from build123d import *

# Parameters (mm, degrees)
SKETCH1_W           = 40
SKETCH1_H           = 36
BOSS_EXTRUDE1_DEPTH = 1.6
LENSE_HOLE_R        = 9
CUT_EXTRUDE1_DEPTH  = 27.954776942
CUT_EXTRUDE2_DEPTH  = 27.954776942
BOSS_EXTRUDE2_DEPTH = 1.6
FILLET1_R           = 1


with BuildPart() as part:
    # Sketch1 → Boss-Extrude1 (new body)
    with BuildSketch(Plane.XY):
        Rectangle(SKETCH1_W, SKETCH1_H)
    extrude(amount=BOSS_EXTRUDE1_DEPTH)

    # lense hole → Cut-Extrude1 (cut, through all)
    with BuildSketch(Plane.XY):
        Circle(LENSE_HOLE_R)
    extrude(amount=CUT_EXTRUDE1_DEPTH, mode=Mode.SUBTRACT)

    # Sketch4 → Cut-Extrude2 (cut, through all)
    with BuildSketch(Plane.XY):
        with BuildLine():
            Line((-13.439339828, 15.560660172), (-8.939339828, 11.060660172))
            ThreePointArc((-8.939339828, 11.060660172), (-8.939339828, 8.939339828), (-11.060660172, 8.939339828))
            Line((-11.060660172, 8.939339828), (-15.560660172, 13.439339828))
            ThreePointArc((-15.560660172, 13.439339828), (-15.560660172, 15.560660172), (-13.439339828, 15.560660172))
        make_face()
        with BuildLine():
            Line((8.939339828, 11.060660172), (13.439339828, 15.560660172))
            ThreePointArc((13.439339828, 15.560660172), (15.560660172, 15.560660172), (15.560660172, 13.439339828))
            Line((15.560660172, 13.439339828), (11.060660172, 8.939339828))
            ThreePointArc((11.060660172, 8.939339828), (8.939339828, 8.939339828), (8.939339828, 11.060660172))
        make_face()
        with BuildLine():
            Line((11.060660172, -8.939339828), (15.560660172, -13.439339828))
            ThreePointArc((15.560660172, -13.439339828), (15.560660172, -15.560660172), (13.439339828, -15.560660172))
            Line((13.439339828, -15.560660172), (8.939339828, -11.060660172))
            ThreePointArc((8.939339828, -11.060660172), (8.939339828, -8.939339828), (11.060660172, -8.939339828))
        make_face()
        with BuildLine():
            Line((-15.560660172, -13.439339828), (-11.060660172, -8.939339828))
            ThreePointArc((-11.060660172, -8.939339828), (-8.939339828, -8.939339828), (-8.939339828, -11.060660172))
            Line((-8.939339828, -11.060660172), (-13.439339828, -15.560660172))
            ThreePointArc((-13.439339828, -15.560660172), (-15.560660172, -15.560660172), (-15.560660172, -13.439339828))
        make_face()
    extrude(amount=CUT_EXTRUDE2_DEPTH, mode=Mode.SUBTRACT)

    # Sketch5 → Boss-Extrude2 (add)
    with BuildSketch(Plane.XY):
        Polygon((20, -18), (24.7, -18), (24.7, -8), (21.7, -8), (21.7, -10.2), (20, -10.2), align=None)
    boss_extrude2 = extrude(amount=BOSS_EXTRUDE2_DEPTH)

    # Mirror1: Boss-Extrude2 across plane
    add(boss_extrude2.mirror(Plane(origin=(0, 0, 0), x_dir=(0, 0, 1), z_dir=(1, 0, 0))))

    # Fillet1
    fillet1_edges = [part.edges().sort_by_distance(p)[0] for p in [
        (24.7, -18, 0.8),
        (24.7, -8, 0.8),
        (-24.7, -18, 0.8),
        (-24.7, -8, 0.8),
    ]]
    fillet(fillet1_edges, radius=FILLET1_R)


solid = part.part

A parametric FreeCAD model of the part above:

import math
import FreeCAD as App
import Part
import Sketcher
Q = App.Units.Quantity


def edges_at(feature, points):
    """Names of the edges that pass closest to the given points."""
    edges = feature.Shape.Edges
    near = lambda p: min(range(len(edges)), key=lambda i: edges[i].distToShape(Part.Vertex(*p))[0])
    return sorted({f"Edge{near(p) + 1}" for p in points})

doc = App.newDocument("Part")
params = doc.addObject("Spreadsheet::Sheet", "Params")
for row, (alias, value) in enumerate([
    ("sketch1_width", "40 mm"),
    ("sketch1_height", "36 mm"),
    ("pad1_length", "1.6 mm"),
    ("sketch2_diameter", "18 mm"),
    ("sketch3_radius", "1.5 mm"),
    ("sketch4_width", "3 mm"),
    ("sketch4_height", "10 mm"),
    ("sketch4_width2", "4.7 mm"),
    ("sketch4_height2", "2.2 mm"),
    ("pad2_length", "1.6 mm"),
    ("fillet_radius", "1 mm"),
], start=1):
    params.set(f"A{row}", alias)
    params.set(f"B{row}", "=" + value)
    params.setAlias(f"B{row}", alias)

body = doc.addObject("PartDesign::Body", "Body")

# Sketch on XY plane
sketch1 = doc.addObject("Sketcher::SketchObject", "Sketch")
body.addObject(sketch1)
sketch1.AttachmentSupport = (doc.XY_Plane, [""])
sketch1.MapMode = "FlatFace"
sketch1.addGeometry(Part.LineSegment(App.Vector(-20, 18, 0), App.Vector(-20, -18, 0)), False)
sketch1.addGeometry(Part.LineSegment(App.Vector(-20, -18, 0), App.Vector(20, -18, 0)), False)
sketch1.addGeometry(Part.LineSegment(App.Vector(20, -18, 0), App.Vector(20, 18, 0)), False)
sketch1.addGeometry(Part.LineSegment(App.Vector(20, 18, 0), App.Vector(-20, 18, 0)), False)
sketch1.addConstraint(Sketcher.Constraint("Coincident", 0, 2, 1, 1))
sketch1.addConstraint(Sketcher.Constraint("Coincident", 1, 2, 2, 1))
sketch1.addConstraint(Sketcher.Constraint("Coincident", 2, 2, 3, 1))
sketch1.addConstraint(Sketcher.Constraint("Coincident", 3, 2, 0, 1))
sketch1.addConstraint(Sketcher.Constraint("Vertical", 0))
sketch1.addConstraint(Sketcher.Constraint("Horizontal", 1))
sketch1.addConstraint(Sketcher.Constraint("Vertical", 2))
sketch1.addConstraint(Sketcher.Constraint("Horizontal", 3))
sketch1.addConstraint(Sketcher.Constraint("Symmetric", 0, 2, 2, 2, -1, 1))
sketch1.addConstraint(Sketcher.Constraint("DistanceX", 1, 1, 1, 2, Q("40 mm")))
sketch1.addConstraint(Sketcher.Constraint("DistanceY", 0, 2, 0, 1, Q("36 mm")))
sketch1.setExpression("Constraints[9]", "Params.sketch1_width")
sketch1.setExpression("Constraints[10]", "Params.sketch1_height")
pad1 = doc.addObject("PartDesign::Pad", "Pad")
body.addObject(pad1)
pad1.Profile = sketch1
pad1.setExpression("Length", "Params.pad1_length")

# Sketch on XY plane
sketch2 = doc.addObject("Sketcher::SketchObject", "Sketch001")
body.addObject(sketch2)
sketch2.AttachmentSupport = (doc.XY_Plane, [""])
sketch2.MapMode = "FlatFace"
sketch2.addGeometry(Part.Circle(App.Vector(0, 0, 0), App.Vector(0, 0, 1), 9), False)
sketch2.addConstraint(Sketcher.Constraint("Coincident", 0, 3, -1, 1))
sketch2.addConstraint(Sketcher.Constraint("Diameter", 0, Q("18 mm")))
sketch2.setExpression("Constraints[1]", "Params.sketch2_diameter")
pocket1 = doc.addObject("PartDesign::Pocket", "Pocket")
body.addObject(pocket1)
pocket1.Profile = sketch2
pocket1.Type = "ThroughAll"
pocket1.Reversed = True

# Sketch on XY plane
sketch3 = doc.addObject("Sketcher::SketchObject", "Sketch002")
body.addObject(sketch3)
sketch3.AttachmentSupport = (doc.XY_Plane, [""])
sketch3.MapMode = "FlatFace"
sketch3.addGeometry(Part.LineSegment(App.Vector(-8.9, 11.1, 0), App.Vector(-13.4, 15.6, 0)), False)
sketch3.addGeometry(Part.ArcOfCircle(Part.Circle(App.Vector(-14.5, 14.5, 0), App.Vector(0, 0, 1), 1.5), math.radians(45), math.radians(225)), False)
sketch3.addGeometry(Part.LineSegment(App.Vector(-15.6, 13.4, 0), App.Vector(-11.1, 8.9, 0)), False)
sketch3.addGeometry(Part.ArcOfCircle(Part.Circle(App.Vector(-10, 10, 0), App.Vector(0, 0, 1), 1.5), math.radians(-135), math.radians(45)), False)
sketch3.addGeometry(Part.LineSegment(App.Vector(13.4, 15.6, 0), App.Vector(8.9, 11.1, 0)), False)
sketch3.addGeometry(Part.ArcOfCircle(Part.Circle(App.Vector(10, 10, 0), App.Vector(0, 0, 1), 1.5), math.radians(135), math.radians(315)), False)
sketch3.addGeometry(Part.LineSegment(App.Vector(11.1, 8.9, 0), App.Vector(15.6, 13.4, 0)), False)
sketch3.addGeometry(Part.ArcOfCircle(Part.Circle(App.Vector(14.5, 14.5, 0), App.Vector(0, 0, 1), 1.5), math.radians(-45), math.radians(135)), False)
sketch3.addGeometry(Part.LineSegment(App.Vector(15.6, -13.4, 0), App.Vector(11.1, -8.9, 0)), False)
sketch3.addGeometry(Part.ArcOfCircle(Part.Circle(App.Vector(10, -10, 0), App.Vector(0, 0, 1), 1.5), math.radians(45), math.radians(225)), False)
sketch3.addGeometry(Part.LineSegment(App.Vector(8.9, -11.1, 0), App.Vector(13.4, -15.6, 0)), False)
sketch3.addGeometry(Part.ArcOfCircle(Part.Circle(App.Vector(14.5, -14.5, 0), App.Vector(0, 0, 1), 1.5), math.radians(-135), math.radians(45)), False)
sketch3.addGeometry(Part.LineSegment(App.Vector(-11.1, -8.9, 0), App.Vector(-15.6, -13.4, 0)), False)
sketch3.addGeometry(Part.ArcOfCircle(Part.Circle(App.Vector(-14.5, -14.5, 0), App.Vector(0, 0, 1), 1.5), math.radians(135), math.radians(315)), False)
sketch3.addGeometry(Part.LineSegment(App.Vector(-13.4, -15.6, 0), App.Vector(-8.9, -11.1, 0)), False)
sketch3.addGeometry(Part.ArcOfCircle(Part.Circle(App.Vector(-10, -10, 0), App.Vector(0, 0, 1), 1.5), math.radians(-45), math.radians(135)), False)
sketch3.addConstraint(Sketcher.Constraint("Tangent", 0, 2, 1, 1))
sketch3.addConstraint(Sketcher.Constraint("Tangent", 1, 2, 2, 1))
sketch3.addConstraint(Sketcher.Constraint("Tangent", 2, 2, 3, 1))
sketch3.addConstraint(Sketcher.Constraint("Tangent", 3, 2, 0, 1))
sketch3.addConstraint(Sketcher.Constraint("Tangent", 4, 2, 5, 1))
sketch3.addConstraint(Sketcher.Constraint("Tangent", 5, 2, 6, 1))
sketch3.addConstraint(Sketcher.Constraint("Tangent", 6, 2, 7, 1))
sketch3.addConstraint(Sketcher.Constraint("Tangent", 7, 2, 4, 1))
sketch3.addConstraint(Sketcher.Constraint("Tangent", 8, 2, 9, 1))
sketch3.addConstraint(Sketcher.Constraint("Tangent", 9, 2, 10, 1))
sketch3.addConstraint(Sketcher.Constraint("Tangent", 10, 2, 11, 1))
sketch3.addConstraint(Sketcher.Constraint("Tangent", 11, 2, 8, 1))
sketch3.addConstraint(Sketcher.Constraint("Tangent", 12, 2, 13, 1))
sketch3.addConstraint(Sketcher.Constraint("Tangent", 13, 2, 14, 1))
sketch3.addConstraint(Sketcher.Constraint("Tangent", 14, 2, 15, 1))
sketch3.addConstraint(Sketcher.Constraint("Tangent", 15, 2, 12, 1))
sketch3.addConstraint(Sketcher.Constraint("Equal", 1, 3))
sketch3.addConstraint(Sketcher.Constraint("Equal", 3, 5))
sketch3.addConstraint(Sketcher.Constraint("Equal", 5, 7))
sketch3.addConstraint(Sketcher.Constraint("Equal", 7, 9))
sketch3.addConstraint(Sketcher.Constraint("Equal", 9, 11))
sketch3.addConstraint(Sketcher.Constraint("Equal", 11, 13))
sketch3.addConstraint(Sketcher.Constraint("Equal", 13, 15))
sketch3.addConstraint(Sketcher.Constraint("Symmetric", 3, 3, 9, 3, -1, 1))
sketch3.addConstraint(Sketcher.Constraint("Symmetric", 1, 3, 11, 3, -1, 1))
sketch3.addConstraint(Sketcher.Constraint("Symmetric", 7, 3, 13, 3, -1, 1))
sketch3.addConstraint(Sketcher.Constraint("Symmetric", 5, 3, 15, 3, -1, 1))
sketch3.addConstraint(Sketcher.Constraint("Symmetric", 3, 3, 5, 3, -2))
sketch3.addConstraint(Sketcher.Constraint("Symmetric", 1, 3, 7, 3, -2))
sketch3.addConstraint(Sketcher.Constraint("Perpendicular", 2, 4))
sketch3.addConstraint(Sketcher.Constraint("Radius", 1, Q("1.5 mm")))
sketch3.addConstraint(Sketcher.Constraint("DistanceX", 3, 3, -1, 1, Q("10 mm")))
sketch3.addConstraint(Sketcher.Constraint("DistanceY", -1, 1, 3, 3, Q("10 mm")))
sketch3.addConstraint(Sketcher.Constraint("DistanceX", 1, 3, 7, 3, Q("29 mm")))
sketch3.setExpression("Constraints[30]", "Params.sketch3_radius")
pocket2 = doc.addObject("PartDesign::Pocket", "Pocket001")
body.addObject(pocket2)
pocket2.Profile = sketch3
pocket2.Type = "ThroughAll"
pocket2.Reversed = True

# Sketch on XY plane
sketch4 = doc.addObject("Sketcher::SketchObject", "Sketch003")
body.addObject(sketch4)
sketch4.AttachmentSupport = (doc.XY_Plane, [""])
sketch4.MapMode = "FlatFace"
sketch4.addGeometry(Part.LineSegment(App.Vector(20, -18, 0), App.Vector(24.7, -18, 0)), False)
sketch4.addGeometry(Part.LineSegment(App.Vector(24.7, -18, 0), App.Vector(24.7, -8, 0)), False)
sketch4.addGeometry(Part.LineSegment(App.Vector(24.7, -8, 0), App.Vector(21.7, -8, 0)), False)
sketch4.addGeometry(Part.LineSegment(App.Vector(21.7, -8, 0), App.Vector(21.7, -10.2, 0)), False)
sketch4.addGeometry(Part.LineSegment(App.Vector(21.7, -10.2, 0), App.Vector(20, -10.2, 0)), False)
sketch4.addGeometry(Part.LineSegment(App.Vector(20, -10.2, 0), App.Vector(20, -18, 0)), False)
sketch4.addConstraint(Sketcher.Constraint("Coincident", 0, 2, 1, 1))
sketch4.addConstraint(Sketcher.Constraint("Coincident", 1, 2, 2, 1))
sketch4.addConstraint(Sketcher.Constraint("Coincident", 2, 2, 3, 1))
sketch4.addConstraint(Sketcher.Constraint("Coincident", 3, 2, 4, 1))
sketch4.addConstraint(Sketcher.Constraint("Coincident", 4, 2, 5, 1))
sketch4.addConstraint(Sketcher.Constraint("Coincident", 5, 2, 0, 1))
sketch4.addConstraint(Sketcher.Constraint("Horizontal", 0))
sketch4.addConstraint(Sketcher.Constraint("Vertical", 1))
sketch4.addConstraint(Sketcher.Constraint("Horizontal", 2))
sketch4.addConstraint(Sketcher.Constraint("Vertical", 3))
sketch4.addConstraint(Sketcher.Constraint("Horizontal", 4))
sketch4.addConstraint(Sketcher.Constraint("Vertical", 5))
sketch4.addConstraint(Sketcher.Constraint("DistanceX", 2, 2, 2, 1, Q("3 mm")))
sketch4.addConstraint(Sketcher.Constraint("DistanceY", 1, 1, 1, 2, Q("10 mm")))
sketch4.addConstraint(Sketcher.Constraint("DistanceX", 0, 1, 0, 2, Q("4.7 mm")))
sketch4.addConstraint(Sketcher.Constraint("DistanceY", 3, 2, 3, 1, Q("2.2 mm")))
sketch4.addConstraint(Sketcher.Constraint("DistanceY", 0, 2, -1, 1, Q("18 mm")))
sketch4.addConstraint(Sketcher.Constraint("DistanceX", -1, 1, 4, 2, Q("20 mm")))
sketch4.setExpression("Constraints[12]", "Params.sketch4_width")
sketch4.setExpression("Constraints[13]", "Params.sketch4_height")
sketch4.setExpression("Constraints[14]", "Params.sketch4_width2")
sketch4.setExpression("Constraints[15]", "Params.sketch4_height2")
pad2 = doc.addObject("PartDesign::Pad", "Pad001")
body.addObject(pad2)
pad2.Profile = sketch4
pad2.setExpression("Length", "Params.pad2_length")
doc.recompute()

mirrored = doc.addObject("PartDesign::Mirrored", "Mirrored")
body.addObject(mirrored)
mirrored.Originals = [pad2]
mirrored.MirrorPlane = (doc.YZ_Plane, [""])
body.Tip = mirrored
doc.recompute()

fillet = doc.addObject("PartDesign::Fillet", "Fillet")
body.addObject(fillet)
fillet.Base = (mirrored, edges_at(mirrored, [
    (24.7, -18, 0.8),
    (24.7, -8, 0.8),
    (-24.7, -18, 0.8),
    (-24.7, -8, 0.8),
]))
fillet.setExpression("Radius", "Params.fillet_radius")

doc.recompute()
